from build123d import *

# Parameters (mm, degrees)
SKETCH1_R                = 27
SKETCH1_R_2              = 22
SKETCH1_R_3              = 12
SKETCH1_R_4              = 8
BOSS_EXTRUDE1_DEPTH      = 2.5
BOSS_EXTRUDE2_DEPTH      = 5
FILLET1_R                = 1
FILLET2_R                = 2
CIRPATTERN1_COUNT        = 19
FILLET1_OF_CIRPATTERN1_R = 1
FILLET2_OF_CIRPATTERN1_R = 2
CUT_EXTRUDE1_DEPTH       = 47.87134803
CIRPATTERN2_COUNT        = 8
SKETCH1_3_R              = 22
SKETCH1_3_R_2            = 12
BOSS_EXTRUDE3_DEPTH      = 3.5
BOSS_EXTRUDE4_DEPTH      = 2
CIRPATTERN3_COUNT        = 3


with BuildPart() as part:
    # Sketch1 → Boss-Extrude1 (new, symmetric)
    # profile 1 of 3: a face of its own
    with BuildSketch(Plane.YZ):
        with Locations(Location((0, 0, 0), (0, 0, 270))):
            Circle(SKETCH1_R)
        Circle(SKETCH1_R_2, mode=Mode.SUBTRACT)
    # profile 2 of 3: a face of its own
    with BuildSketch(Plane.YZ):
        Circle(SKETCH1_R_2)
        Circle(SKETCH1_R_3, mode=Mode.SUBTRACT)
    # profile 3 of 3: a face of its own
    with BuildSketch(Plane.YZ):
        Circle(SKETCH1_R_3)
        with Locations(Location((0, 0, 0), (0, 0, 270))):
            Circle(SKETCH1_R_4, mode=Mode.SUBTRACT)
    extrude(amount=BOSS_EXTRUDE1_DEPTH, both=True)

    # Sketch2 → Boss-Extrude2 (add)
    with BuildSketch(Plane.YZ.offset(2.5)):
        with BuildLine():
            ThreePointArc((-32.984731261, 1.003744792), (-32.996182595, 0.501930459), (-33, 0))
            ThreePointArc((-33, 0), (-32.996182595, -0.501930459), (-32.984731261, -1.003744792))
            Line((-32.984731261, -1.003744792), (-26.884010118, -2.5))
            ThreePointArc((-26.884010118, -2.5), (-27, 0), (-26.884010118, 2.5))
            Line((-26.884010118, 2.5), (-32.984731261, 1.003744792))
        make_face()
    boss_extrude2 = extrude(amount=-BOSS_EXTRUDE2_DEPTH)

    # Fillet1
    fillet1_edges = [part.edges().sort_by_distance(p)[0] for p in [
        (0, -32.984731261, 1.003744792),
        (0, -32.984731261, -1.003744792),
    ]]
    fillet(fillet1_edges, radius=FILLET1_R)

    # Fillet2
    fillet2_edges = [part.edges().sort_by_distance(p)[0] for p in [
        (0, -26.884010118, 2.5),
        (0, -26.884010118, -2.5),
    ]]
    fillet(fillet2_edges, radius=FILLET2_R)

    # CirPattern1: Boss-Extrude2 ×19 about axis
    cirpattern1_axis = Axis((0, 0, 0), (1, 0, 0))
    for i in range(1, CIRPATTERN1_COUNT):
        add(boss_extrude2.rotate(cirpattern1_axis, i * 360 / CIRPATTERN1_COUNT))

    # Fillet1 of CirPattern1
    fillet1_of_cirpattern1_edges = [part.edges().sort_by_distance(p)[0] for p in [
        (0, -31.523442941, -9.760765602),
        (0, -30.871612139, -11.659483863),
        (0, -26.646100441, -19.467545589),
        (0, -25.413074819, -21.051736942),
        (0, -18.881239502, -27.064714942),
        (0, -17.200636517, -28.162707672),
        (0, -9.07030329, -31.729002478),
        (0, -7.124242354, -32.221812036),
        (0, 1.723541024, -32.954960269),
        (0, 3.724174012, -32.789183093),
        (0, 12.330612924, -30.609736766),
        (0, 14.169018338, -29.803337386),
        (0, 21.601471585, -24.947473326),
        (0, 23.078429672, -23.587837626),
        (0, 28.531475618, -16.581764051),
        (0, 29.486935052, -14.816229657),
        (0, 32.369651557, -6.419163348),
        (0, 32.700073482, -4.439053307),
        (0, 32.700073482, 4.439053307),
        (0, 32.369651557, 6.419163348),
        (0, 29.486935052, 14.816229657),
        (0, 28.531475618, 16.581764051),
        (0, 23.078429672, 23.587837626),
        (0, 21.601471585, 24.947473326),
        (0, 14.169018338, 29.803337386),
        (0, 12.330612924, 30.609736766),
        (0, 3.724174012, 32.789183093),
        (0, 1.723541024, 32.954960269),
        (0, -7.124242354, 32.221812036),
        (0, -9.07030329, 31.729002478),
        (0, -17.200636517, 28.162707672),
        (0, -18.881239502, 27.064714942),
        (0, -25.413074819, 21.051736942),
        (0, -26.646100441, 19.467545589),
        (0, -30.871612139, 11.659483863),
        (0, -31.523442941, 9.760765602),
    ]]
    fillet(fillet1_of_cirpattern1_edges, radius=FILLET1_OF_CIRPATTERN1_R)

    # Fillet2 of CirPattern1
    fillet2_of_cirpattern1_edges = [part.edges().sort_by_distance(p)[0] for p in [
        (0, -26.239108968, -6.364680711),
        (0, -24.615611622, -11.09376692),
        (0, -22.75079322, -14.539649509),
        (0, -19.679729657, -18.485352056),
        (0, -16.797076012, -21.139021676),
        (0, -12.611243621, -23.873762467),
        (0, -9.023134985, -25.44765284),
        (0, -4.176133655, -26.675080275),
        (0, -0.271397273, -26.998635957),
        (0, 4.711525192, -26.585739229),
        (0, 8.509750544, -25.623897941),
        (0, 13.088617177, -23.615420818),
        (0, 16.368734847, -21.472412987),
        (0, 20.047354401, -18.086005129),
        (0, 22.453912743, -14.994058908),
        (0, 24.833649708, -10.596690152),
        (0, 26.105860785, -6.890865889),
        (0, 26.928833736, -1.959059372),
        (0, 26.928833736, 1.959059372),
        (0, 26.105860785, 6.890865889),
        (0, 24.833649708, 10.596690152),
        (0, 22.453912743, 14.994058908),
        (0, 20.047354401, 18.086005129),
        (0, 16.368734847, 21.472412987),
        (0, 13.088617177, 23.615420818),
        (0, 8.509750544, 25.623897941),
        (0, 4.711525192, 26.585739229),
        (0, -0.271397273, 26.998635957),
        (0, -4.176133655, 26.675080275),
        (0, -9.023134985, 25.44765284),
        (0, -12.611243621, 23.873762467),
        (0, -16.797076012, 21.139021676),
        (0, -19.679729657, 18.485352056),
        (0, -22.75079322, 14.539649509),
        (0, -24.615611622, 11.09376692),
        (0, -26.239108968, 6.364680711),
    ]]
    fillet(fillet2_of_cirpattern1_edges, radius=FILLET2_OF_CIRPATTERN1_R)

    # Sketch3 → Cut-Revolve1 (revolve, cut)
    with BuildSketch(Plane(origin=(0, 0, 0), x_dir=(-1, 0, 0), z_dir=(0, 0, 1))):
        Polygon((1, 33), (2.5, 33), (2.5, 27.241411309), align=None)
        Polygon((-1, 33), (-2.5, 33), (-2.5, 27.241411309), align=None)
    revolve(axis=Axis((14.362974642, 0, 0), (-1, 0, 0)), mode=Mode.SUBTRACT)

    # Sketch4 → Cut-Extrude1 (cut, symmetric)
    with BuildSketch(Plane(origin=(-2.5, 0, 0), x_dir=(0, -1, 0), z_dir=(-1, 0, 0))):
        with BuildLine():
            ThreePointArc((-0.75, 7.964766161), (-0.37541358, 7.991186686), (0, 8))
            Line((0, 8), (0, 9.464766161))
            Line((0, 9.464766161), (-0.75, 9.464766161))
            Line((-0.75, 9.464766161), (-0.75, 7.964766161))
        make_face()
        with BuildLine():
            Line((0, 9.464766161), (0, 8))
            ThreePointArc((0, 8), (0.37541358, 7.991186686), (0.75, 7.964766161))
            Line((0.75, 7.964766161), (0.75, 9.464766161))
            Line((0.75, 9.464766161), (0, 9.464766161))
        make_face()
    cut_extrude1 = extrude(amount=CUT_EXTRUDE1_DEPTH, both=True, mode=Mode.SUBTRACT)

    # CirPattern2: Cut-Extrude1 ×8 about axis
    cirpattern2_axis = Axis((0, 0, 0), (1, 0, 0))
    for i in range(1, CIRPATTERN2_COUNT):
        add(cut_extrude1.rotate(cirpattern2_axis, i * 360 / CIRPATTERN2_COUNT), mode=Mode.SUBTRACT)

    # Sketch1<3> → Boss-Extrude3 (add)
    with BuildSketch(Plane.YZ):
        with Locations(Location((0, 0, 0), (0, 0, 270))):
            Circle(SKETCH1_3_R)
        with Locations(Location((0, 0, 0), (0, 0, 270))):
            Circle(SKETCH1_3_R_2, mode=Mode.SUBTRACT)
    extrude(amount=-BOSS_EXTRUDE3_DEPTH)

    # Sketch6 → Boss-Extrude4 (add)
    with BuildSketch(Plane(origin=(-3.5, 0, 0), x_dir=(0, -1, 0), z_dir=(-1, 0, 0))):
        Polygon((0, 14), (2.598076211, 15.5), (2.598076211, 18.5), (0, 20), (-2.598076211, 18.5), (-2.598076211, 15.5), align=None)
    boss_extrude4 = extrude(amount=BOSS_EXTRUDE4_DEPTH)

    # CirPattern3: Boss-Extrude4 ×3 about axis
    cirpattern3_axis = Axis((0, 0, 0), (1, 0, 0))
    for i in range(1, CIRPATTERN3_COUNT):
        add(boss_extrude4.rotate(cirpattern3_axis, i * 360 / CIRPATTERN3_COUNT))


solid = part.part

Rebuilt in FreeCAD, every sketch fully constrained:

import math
import FreeCAD as App
import Part
import Sketcher
from FreeCAD import Vector
Q = App.Units.Quantity


def edges_at(feature, points):
    """Names of the edges that pass closest to the given points."""
    edges = feature.Shape.Edges
    near = lambda p: min(range(len(edges)), key=lambda i: edges[i].distToShape(Part.Vertex(*p))[0])
    return sorted({f"Edge{near(p) + 1}" for p in points})


def add_polygon(sketch, points):
    """Adds a closed chain of lines whose ends are joined by coincident constraints."""
    first, n = sketch.GeometryCount, len(points)
    for a, b in zip(points, points[1:] + points[:1]):
        sketch.addGeometry(Part.LineSegment(App.Vector(*a, 0), App.Vector(*b, 0)), False)
    for i in range(n):
        sketch.addConstraint(Sketcher.Constraint("Coincident", first + i, 2, first + (i + 1) % n, 1))

doc = App.newDocument("Part")
body = doc.addObject("PartDesign::Body", "Body")

# Sketch on YZ plane
sketch1 = body.newObject("Sketcher::SketchObject", "Sketch")
sketch1.AttachmentSupport = (doc.getObject("YZ_Plane"), [""])
sketch1.MapMode = "FlatFace"
sketch1.addGeometry(Part.Circle(Vector(0, 0, 0), Vector(0, 0, 1), 27), False)
sketch1.addGeometry(Part.Circle(Vector(0, 0, 0), Vector(0, 0, 1), 8), False)
sketch1.addConstraint(Sketcher.Constraint("Coincident", 0, 3, -1, 1))
sketch1.addConstraint(Sketcher.Constraint("Coincident", 1, 3, -1, 1))
sketch1.addConstraint(Sketcher.Constraint("Diameter", 0, Q("54 mm")))
sketch1.addConstraint(Sketcher.Constraint("Diameter", 1, Q("16 mm")))
pad1 = body.newObject("PartDesign::Pad", "Pad")
pad1.Profile = sketch1
pad1.Length = 5
pad1.Midplane = True

# Sketch on YZ plane
sketch2 = body.newObject("Sketcher::SketchObject", "Sketch001")
sketch2.AttachmentSupport = (doc.getObject("YZ_Plane"), [""])
sketch2.MapMode = "FlatFace"
sketch2.AttachmentOffset = App.Placement(Vector(0, 0, 2.5), App.Rotation())
sketch2.addGeometry(Part.ArcOfCircle(Part.Circle(Vector(0, 0, 0), Vector(0, 0, 1), 33), math.radians(178.26), math.radians(180)), False)
sketch2.addGeometry(Part.ArcOfCircle(Part.Circle(Vector(0, 0, 0), Vector(0, 0, 1), 33), math.radians(180), math.radians(181.74)), False)
sketch2.addGeometry(Part.LineSegment(Vector(-33, -1, 0), Vector(-26.9, -2.5, 0)), False)
sketch2.addGeometry(Part.ArcOfCircle(Part.Circle(Vector(0, 0, 0), Vector(0, 0, 1), 27), math.radians(174.69), math.radians(185.31)), False)
sketch2.addGeometry(Part.LineSegment(Vector(-26.9, 2.5, 0), Vector(-33, 1, 0)), False)
sketch2.addConstraint(Sketcher.Constraint("Tangent", 0, 2, 1, 1))
sketch2.addConstraint(Sketcher.Constraint("Coincident", 1, 2, 2, 1))
sketch2.addConstraint(Sketcher.Constraint("Coincident", 2, 2, 3, 2))
sketch2.addConstraint(Sketcher.Constraint("Coincident", 3, 1, 4, 1))
sketch2.addConstraint(Sketcher.Constraint("Coincident", 4, 2, 0, 1))
sketch2.addConstraint(Sketcher.Constraint("Coincident", 0, 3, -1, 1))
sketch2.addConstraint(Sketcher.Constraint("Coincident", 3, 3, -1, 1))
sketch2.addConstraint(Sketcher.Constraint("Equal", 0, 1))
sketch2.addConstraint(Sketcher.Constraint("PointOnObject", 0, 2, -1))
sketch2.addConstraint(Sketcher.Constraint("Vertical", 2, 2, 3, 1))
sketch2.addConstraint(Sketcher.Constraint("Vertical", 1, 2, 4, 2))
sketch2.addConstraint(Sketcher.Constraint("Radius", 3, Q("27 mm")))
sketch2.addConstraint(Sketcher.Constraint("DistanceX", 0, 2, -1, 1, Q("33 mm")))
sketch2.addConstraint(Sketcher.Constraint("DistanceY", 2, 2, 3, 1, Q("5 mm")))
sketch2.addConstraint(Sketcher.Constraint("DistanceX", 1, 2, -1, 1, Q("32.984731 mm")))
pad2 = body.newObject("PartDesign::Pad", "Pad001")
pad2.Profile = sketch2
pad2.Length = 5
pad2.Reversed = True
doc.recompute()

fillet = body.newObject("PartDesign::Fillet", "Fillet")
fillet.Base = (pad2, edges_at(pad2, [(0, -32.985, 1.004), (0, -32.985, -1.004)]))
fillet.Radius = 1
doc.recompute()

fillet2 = body.newObject("PartDesign::Fillet", "Fillet001")
fillet2.Base = (fillet, edges_at(fillet, [(0, -26.884, 2.5), (0, -26.884, -2.5)]))
fillet2.Radius = 2
doc.recompute()

polarpattern = body.newObject("PartDesign::PolarPattern", "PolarPattern")
polarpattern.Originals = [pad2]
polarpattern.Axis = (doc.getObject("X_Axis"), [""])
polarpattern.Angle = 360
polarpattern.Occurrences = 19
body.Tip = polarpattern
doc.recompute()

fillet3 = body.newObject("PartDesign::Fillet", "Fillet002")
fillet3.Base = (polarpattern, edges_at(polarpattern, [
    (0, -31.523, -9.761),
    (0, -30.872, -11.659),
    (0, -26.646, -19.468),
    (0, -25.413, -21.052),
    (0, -18.881, -27.065),
    (0, -17.201, -28.163),
    (0, -9.07, -31.729),
    (0, -7.124, -32.222),
    (0, 1.724, -32.955),
    (0, 3.724, -32.789),
    (0, 12.331, -30.61),
    (0, 14.169, -29.803),
    (0, 21.601, -24.947),
    (0, 23.078, -23.588),
    (0, 28.531, -16.582),
    (0, 29.487, -14.816),
    (0, 32.37, -6.419),
    (0, 32.7, -4.439),
    (0, 32.7, 4.439),
    (0, 32.37, 6.419),
    (0, 29.487, 14.816),
    (0, 28.531, 16.582),
    (0, 23.078, 23.588),
    (0, 21.601, 24.947),
    (0, 14.169, 29.803),
    (0, 12.331, 30.61),
    (0, 3.724, 32.789),
    (0, 1.724, 32.955),
    (0, -7.124, 32.222),
    (0, -9.07, 31.729),
    (0, -17.201, 28.163),
    (0, -18.881, 27.065),
    (0, -25.413, 21.052),
    (0, -26.646, 19.468),
    (0, -30.872, 11.659),
    (0, -31.523, 9.761),
]))
fillet3.Radius = 1
doc.recompute()

fillet4 = body.newObject("PartDesign::Fillet", "Fillet003")
fillet4.Base = (fillet3, edges_at(fillet3, [
    (0, -26.239, -6.365),
    (0, -24.616, -11.094),
    (0, -22.751, -14.54),
    (0, -19.68, -18.485),
    (0, -16.797, -21.139),
    (0, -12.611, -23.874),
    (0, -9.023, -25.448),
    (0, -4.176, -26.675),
    (0, -0.271, -26.999),
    (0, 4.712, -26.586),
    (0, 8.51, -25.624),
    (0, 13.089, -23.615),
    (0, 16.369, -21.472),
    (0, 20.047, -18.086),
    (0, 22.454, -14.994),
    (0, 24.834, -10.597),
    (0, 26.106, -6.891),
    (0, 26.929, -1.959),
    (0, 26.929, 1.959),
    (0, 26.106, 6.891),
    (0, 24.834, 10.597),
    (0, 22.454, 14.994),
    (0, 20.047, 18.086),
    (0, 16.369, 21.472),
    (0, 13.089, 23.615),
    (0, 8.51, 25.624),
    (0, 4.712, 26.586),
    (0, -0.271, 26.999),
    (0, -4.176, 26.675),
    (0, -9.023, 25.448),
    (0, -12.611, 23.874),
    (0, -16.797, 21.139),
    (0, -19.68, 18.485),
    (0, -22.751, 14.54),
    (0, -24.616, 11.094),
    (0, -26.239, 6.365),
]))
fillet4.Radius = 2

# Sketch on XY plane
sketch3 = body.newObject("Sketcher::SketchObject", "Sketch002")
sketch3.AttachmentSupport = (doc.getObject("XY_Plane"), [""])
sketch3.MapMode = "FlatFace"
add_polygon(sketch3, [(-2.5, -33), (-1, -33), (-2.5, -27.2)])  # lines 0-2
add_polygon(sketch3, [(1, -33), (2.5, -33), (2.5, -27.2)])  # lines 3-5
sketch3.addConstraint(Sketcher.Constraint("Horizontal", 0))
sketch3.addConstraint(Sketcher.Constraint("Vertical", 2))
sketch3.addConstraint(Sketcher.Constraint("Horizontal", 3))
sketch3.addConstraint(Sketcher.Constraint("Vertical", 4))
sketch3.addConstraint(Sketcher.Constraint("Symmetric", 2, 2, 3, 2, -2))
sketch3.addConstraint(Sketcher.Constraint("Horizontal", 1, 2, 4, 2))
sketch3.addConstraint(Sketcher.Constraint("Equal", 0, 3))
sketch3.addConstraint(Sketcher.Constraint("DistanceX", 0, 1, 0, 2, Q("1.5 mm")))
sketch3.addConstraint(Sketcher.Constraint("DistanceX", 0, 2, -1, 1, Q("1 mm")))
sketch3.addConstraint(Sketcher.Constraint("DistanceY", 0, 2, -1, 1, Q("33 mm")))
sketch3.addConstraint(Sketcher.Constraint("Angle", 1, Q("104.6 deg")))
groove = body.newObject("PartDesign::Groove", "Groove")
groove.Profile = sketch3
groove.ReferenceAxis = (sketch3, ["H_Axis"])
groove.Angle = 360

# Sketch on YZ plane
sketch4 = body.newObject("Sketcher::SketchObject", "Sketch003")
sketch4.AttachmentSupport = (doc.getObject("YZ_Plane"), [""])
sketch4.MapMode = "FlatFace"
sketch4.AttachmentOffset = App.Placement(Vector(0, 0, -2.5), App.Rotation())
sketch4.addGeometry(Part.ArcOfCircle(Part.Circle(Vector(0, 0, 0), Vector(0, 0, 1), 8), math.radians(84.62), math.radians(90)), False)
sketch4.addGeometry(Part.ArcOfCircle(Part.Circle(Vector(0, 0, 0), Vector(0, 0, 1), 8), math.radians(90), math.radians(95.38)), False)
sketch4.addGeometry(Part.LineSegment(Vector(-0.8, 8, 0), Vector(-0.8, 9.5, 0)), False)
sketch4.addGeometry(Part.LineSegment(Vector(-0.8, 9.5, 0), Vector(0.8, 9.5, 0)), False)
sketch4.addGeometry(Part.LineSegment(Vector(0.8, 9.5, 0), Vector(0.8, 8, 0)), False)
sketch4.addConstraint(Sketcher.Constraint("Tangent", 0, 2, 1, 1))
sketch4.addConstraint(Sketcher.Constraint("Coincident", 1, 2, 2, 1))
sketch4.addConstraint(Sketcher.Constraint("Coincident", 2, 2, 3, 1))
sketch4.addConstraint(Sketcher.Constraint("Coincident", 3, 2, 4, 1))
sketch4.addConstraint(Sketcher.Constraint("Coincident", 4, 2, 0, 1))
sketch4.addConstraint(Sketcher.Constraint("Vertical", 2))
sketch4.addConstraint(Sketcher.Constraint("Horizontal", 3))
sketch4.addConstraint(Sketcher.Constraint("Vertical", 4))
sketch4.addConstraint(Sketcher.Constraint("Coincident", 0, 3, -1, 1))
sketch4.addConstraint(Sketcher.Constraint("Equal", 0, 1))
sketch4.addConstraint(Sketcher.Constraint("PointOnObject", 0, 2, -2))
sketch4.addConstraint(Sketcher.Constraint("Horizontal", 1, 2, 4, 2))
sketch4.addConstraint(Sketcher.Constraint("Equal", 3, 2))
sketch4.addConstraint(Sketcher.Constraint("Radius", 0, Q("8 mm")))
sketch4.addConstraint(Sketcher.Constraint("DistanceX", 3, 1, 3, 2, Q("1.5 mm")))
pocket1 = body.newObject("PartDesign::Pocket", "Pocket")
pocket1.Profile = sketch4
pocket1.Length = 95.742696
pocket1.Midplane = True
doc.recompute()

polarpattern2 = body.newObject("PartDesign::PolarPattern", "PolarPattern001")
polarpattern2.Originals = [pocket1]
polarpattern2.Axis = (doc.getObject("X_Axis"), [""])
polarpattern2.Angle = 360
polarpattern2.Occurrences = 8
body.Tip = polarpattern2

# Sketch on YZ plane
sketch5 = body.newObject("Sketcher::SketchObject", "Sketch004")
sketch5.AttachmentSupport = (doc.getObject("YZ_Plane"), [""])
sketch5.MapMode = "FlatFace"
sketch5.addGeometry(Part.Circle(Vector(0, 0, 0), Vector(0, 0, 1), 22), False)
sketch5.addGeometry(Part.Circle(Vector(0, 0, 0), Vector(0, 0, 1), 12), False)
sketch5.addConstraint(Sketcher.Constraint("Coincident", 0, 3, -1, 1))
sketch5.addConstraint(Sketcher.Constraint("Coincident", 1, 3, -1, 1))
sketch5.addConstraint(Sketcher.Constraint("Diameter", 0, Q("44 mm")))
sketch5.addConstraint(Sketcher.Constraint("Diameter", 1, Q("24 mm")))
pad3 = body.newObject("PartDesign::Pad", "Pad002")
pad3.Profile = sketch5
pad3.Length = 3.5
pad3.Reversed = True

# Sketch on YZ plane
sketch6 = body.newObject("Sketcher::SketchObject", "Sketch005")
sketch6.AttachmentSupport = (doc.getObject("YZ_Plane"), [""])
sketch6.MapMode = "FlatFace"
sketch6.AttachmentOffset = App.Placement(Vector(0, 0, -3.5), App.Rotation())
add_polygon(sketch6, [(0, 14), (-2.6, 15.5), (-2.6, 18.5), (0, 20), (2.6, 18.5), (2.6, 15.5)])  # lines 0-5
sketch6.addConstraint(Sketcher.Constraint("Vertical", 1))
sketch6.addConstraint(Sketcher.Constraint("Vertical", 4))
sketch6.addConstraint(Sketcher.Constraint("Symmetric", 1, 2, 3, 2, -2))
sketch6.addConstraint(Sketcher.Constraint("PointOnObject", 2, 2, -2))
sketch6.addConstraint(Sketcher.Constraint("PointOnObject", 5, 2, -2))
sketch6.addConstraint(Sketcher.Constraint("Parallel", 0, 3))
sketch6.addConstraint(Sketcher.Constraint("Parallel", 2, 5))
sketch6.addConstraint(Sketcher.Constraint("DistanceY", 1, 1, 1, 2, Q("3 mm")))
sketch6.addConstraint(Sketcher.Constraint("Angle", 0, Q("150 deg")))
sketch6.addConstraint(Sketcher.Constraint("Distance", 0, Q("3 mm")))
sketch6.addConstraint(Sketcher.Constraint("DistanceY", -1, 1, 2, 2, Q("20 mm")))
pad4 = body.newObject("PartDesign::Pad", "Pad003")
pad4.Profile = sketch6
pad4.Length = 2
pad4.Reversed = True
doc.recompute()

polarpattern3 = body.newObject("PartDesign::PolarPattern", "PolarPattern002")
polarpattern3.Originals = [pad4]
polarpattern3.Axis = (doc.getObject("X_Axis"), [""])
polarpattern3.Angle = 360
polarpattern3.Occurrences = 3
body.Tip = polarpattern3

doc.recompute()
